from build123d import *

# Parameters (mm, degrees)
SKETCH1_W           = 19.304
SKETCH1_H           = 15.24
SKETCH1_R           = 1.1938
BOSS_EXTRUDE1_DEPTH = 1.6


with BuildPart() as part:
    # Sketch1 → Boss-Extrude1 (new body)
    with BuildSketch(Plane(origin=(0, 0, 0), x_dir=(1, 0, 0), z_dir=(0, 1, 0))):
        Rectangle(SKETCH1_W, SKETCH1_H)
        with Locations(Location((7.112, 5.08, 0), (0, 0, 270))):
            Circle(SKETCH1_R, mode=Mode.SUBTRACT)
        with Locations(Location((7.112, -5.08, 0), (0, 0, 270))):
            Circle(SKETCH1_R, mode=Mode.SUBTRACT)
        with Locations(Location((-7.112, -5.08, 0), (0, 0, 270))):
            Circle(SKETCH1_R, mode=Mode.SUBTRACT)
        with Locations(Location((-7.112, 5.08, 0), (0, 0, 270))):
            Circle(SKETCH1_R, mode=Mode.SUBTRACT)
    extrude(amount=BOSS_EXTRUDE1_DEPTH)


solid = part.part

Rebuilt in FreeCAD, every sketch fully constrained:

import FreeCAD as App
import Part
import Sketcher
Q = App.Units.Quantity


def add_polygon(sketch, points):
    """Adds a closed chain of lines whose ends are joined by coincident constraints."""
    first, n = sketch.GeometryCount, len(points)
    for a, b in zip(points, points[1:] + points[:1]):
        sketch.addGeometry(Part.LineSegment(App.Vector(*a, 0), App.Vector(*b, 0)), False)
    for i in range(n):
        sketch.addConstraint(Sketcher.Constraint("Coincident", first + i, 2, first + (i + 1) % n, 1))

doc = App.newDocument("Part")
body = doc.addObject("PartDesign::Body", "Body")

# Sketch on XZ plane
sketch1 = body.newObject("Sketcher::SketchObject", "Sketch")
sketch1.AttachmentSupport = (doc.getObject("XZ_Plane"), [""])
sketch1.MapMode = "FlatFace"
add_polygon(sketch1, [(-9.7, -7.6), (-9.7, 7.6), (9.7, 7.6), (9.7, -7.6)])  # lines 0-3
sketch1.addGeometry(Part.Circle(App.Vector(-7.1, 5.1, 0), App.Vector(0, 0, 1), 1.2), False)  # 4
sketch1.addGeometry(Part.Circle(App.Vector(7.1, 5.1, 0), App.Vector(0, 0, 1), 1.2), False)  # 5
sketch1.addGeometry(Part.Circle(App.Vector(-7.1, -5.1, 0), App.Vector(0, 0, 1), 1.2), False)  # 6
sketch1.addGeometry(Part.Circle(App.Vector(7.1, -5.1, 0), App.Vector(0, 0, 1), 1.2), False)  # 7
sketch1.addConstraint([
    Sketcher.Constraint("Vertical", 0),
    Sketcher.Constraint("Horizontal", 1),
    Sketcher.Constraint("Vertical", 2),
    Sketcher.Constraint("Horizontal", 3),
    Sketcher.Constraint("Equal", 4, 5),
    Sketcher.Constraint("Equal", 5, 6),
    Sketcher.Constraint("Equal", 6, 7),
    Sketcher.Constraint("Symmetric", 5, 3, 6, 3, -1, 1),
    Sketcher.Constraint("Symmetric", 4, 3, 7, 3, -1, 1),
    Sketcher.Constraint("Symmetric", 0, 2, 2, 2, -1, 1),
    Sketcher.Constraint("Symmetric", 4, 3, 5, 3, -2),
    Sketcher.Constraint("Diameter", 4, Q("0.094 in")),
    Sketcher.Constraint("DistanceY", 0, 1, 0, 2, Q("0.6 in")),
    Sketcher.Constraint("DistanceX", 1, 1, 1, 2, Q("0.76 in")),
    Sketcher.Constraint("DistanceY", -1, 1, 4, 3, Q("0.2 in")),
    Sketcher.Constraint("DistanceX", 0, 2, 4, 3, Q("0.1 in")),
])
pad1 = body.newObject("PartDesign::Pad", "Pad")
pad1.Profile = sketch1
pad1.Length = 1.6
pad1.Reversed = True

doc.recompute()
